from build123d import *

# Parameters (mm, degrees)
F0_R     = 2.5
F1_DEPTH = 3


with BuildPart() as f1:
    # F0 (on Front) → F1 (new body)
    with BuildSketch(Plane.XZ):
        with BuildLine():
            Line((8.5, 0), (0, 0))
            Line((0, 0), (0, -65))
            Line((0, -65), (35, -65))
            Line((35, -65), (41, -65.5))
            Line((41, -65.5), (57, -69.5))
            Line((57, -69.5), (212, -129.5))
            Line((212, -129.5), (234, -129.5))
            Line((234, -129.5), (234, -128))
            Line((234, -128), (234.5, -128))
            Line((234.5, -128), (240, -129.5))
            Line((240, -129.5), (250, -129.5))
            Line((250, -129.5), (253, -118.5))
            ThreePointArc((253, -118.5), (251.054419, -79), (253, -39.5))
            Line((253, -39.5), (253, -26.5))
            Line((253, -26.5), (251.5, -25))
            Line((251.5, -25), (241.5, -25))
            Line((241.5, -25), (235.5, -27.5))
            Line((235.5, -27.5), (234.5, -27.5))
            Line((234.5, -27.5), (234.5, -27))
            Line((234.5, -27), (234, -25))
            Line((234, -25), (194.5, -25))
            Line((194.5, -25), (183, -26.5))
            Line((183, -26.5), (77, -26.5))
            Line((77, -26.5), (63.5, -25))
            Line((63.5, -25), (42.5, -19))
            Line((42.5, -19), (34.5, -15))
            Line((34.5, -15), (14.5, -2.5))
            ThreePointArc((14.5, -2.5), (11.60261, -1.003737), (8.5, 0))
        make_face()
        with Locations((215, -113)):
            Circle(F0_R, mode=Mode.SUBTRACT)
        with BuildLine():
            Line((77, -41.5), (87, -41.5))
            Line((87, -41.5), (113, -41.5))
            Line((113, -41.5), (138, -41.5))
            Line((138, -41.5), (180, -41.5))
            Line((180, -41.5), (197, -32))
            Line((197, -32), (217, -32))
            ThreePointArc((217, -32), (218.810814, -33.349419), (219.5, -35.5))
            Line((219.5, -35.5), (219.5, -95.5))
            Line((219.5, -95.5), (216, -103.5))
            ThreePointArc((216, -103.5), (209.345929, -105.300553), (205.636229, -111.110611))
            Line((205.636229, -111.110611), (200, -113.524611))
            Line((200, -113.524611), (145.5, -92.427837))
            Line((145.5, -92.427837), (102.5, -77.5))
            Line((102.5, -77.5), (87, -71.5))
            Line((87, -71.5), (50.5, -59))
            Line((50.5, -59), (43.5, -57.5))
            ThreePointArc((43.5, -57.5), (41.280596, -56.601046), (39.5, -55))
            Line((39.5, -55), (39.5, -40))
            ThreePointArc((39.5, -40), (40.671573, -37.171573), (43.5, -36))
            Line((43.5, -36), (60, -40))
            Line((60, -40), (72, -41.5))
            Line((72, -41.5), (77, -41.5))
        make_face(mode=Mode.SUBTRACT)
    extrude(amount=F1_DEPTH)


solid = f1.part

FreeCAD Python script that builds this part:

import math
import FreeCAD as App
import Part
import Sketcher
from FreeCAD import Vector
Q = App.Units.Quantity

doc = App.newDocument("Part")
params = doc.addObject("Spreadsheet::Sheet", "Params")
for row, (alias, value) in enumerate([
    ("sketch1_diameter", "5 mm"),
    ("sketch1_radius", "4 mm"),
    ("sketch1_radius2", "3.7 mm"),
    ("sketch1_width", "35 mm"),
    ("sketch1_width2", "22 mm"),
    ("pad1_length", "3 mm"),
], start=1):
    params.set(f"A{row}", alias)
    params.set(f"B{row}", "=" + value)
    params.setAlias(f"B{row}", alias)

body = doc.addObject("PartDesign::Body", "Body")

sketch1 = body.newObject("Sketcher::SketchObject", "Sketch")
sketch1.AttachmentSupport = (doc.getObject("XZ_Plane"), [""])
sketch1.MapMode = "FlatFace"
sketch1.addGeometry(Part.LineSegment(Vector(8.5, 0, 0), Vector(0, 0, 0)), False)
sketch1.addGeometry(Part.LineSegment(Vector(0, 0, 0), Vector(0, -65, 0)), False)
sketch1.addGeometry(Part.LineSegment(Vector(0, -65, 0), Vector(35, -65, 0)), False)
sketch1.addGeometry(Part.LineSegment(Vector(35, -65, 0), Vector(41, -65.5, 0)), False)
sketch1.addGeometry(Part.LineSegment(Vector(41, -65.5, 0), Vector(57, -69.5, 0)), False)
sketch1.addGeometry(Part.LineSegment(Vector(57, -69.5, 0), Vector(212, -129.5, 0)), False)
sketch1.addGeometry(Part.LineSegment(Vector(212, -129.5, 0), Vector(234, -129.5, 0)), False)
sketch1.addGeometry(Part.LineSegment(Vector(234, -129.5, 0), Vector(234, -128, 0)), False)
sketch1.addGeometry(Part.LineSegment(Vector(234, -128, 0), Vector(234.5, -128, 0)), False)
sketch1.addGeometry(Part.LineSegment(Vector(234.5, -128, 0), Vector(240, -129.5, 0)), False)
sketch1.addGeometry(Part.LineSegment(Vector(240, -129.5, 0), Vector(250, -129.5, 0)), False)
sketch1.addGeometry(Part.LineSegment(Vector(250, -129.5, 0), Vector(253, -118.5, 0)), False)
sketch1.addGeometry(Part.ArcOfCircle(Part.Circle(Vector(653, -79, 0), Vector(0, 0, 1), 401.9), math.radians(174.36), math.radians(185.64)), False)
sketch1.addGeometry(Part.LineSegment(Vector(253, -39.5, 0), Vector(253, -26.5, 0)), False)
sketch1.addGeometry(Part.LineSegment(Vector(253, -26.5, 0), Vector(251.5, -25, 0)), False)
sketch1.addGeometry(Part.LineSegment(Vector(251.5, -25, 0), Vector(241.5, -25, 0)), False)
sketch1.addGeometry(Part.LineSegment(Vector(241.5, -25, 0), Vector(235.5, -27.5, 0)), False)
sketch1.addGeometry(Part.LineSegment(Vector(235.5, -27.5, 0), Vector(234.5, -27.5, 0)), False)
sketch1.addGeometry(Part.LineSegment(Vector(234.5, -27.5, 0), Vector(234.5, -27, 0)), False)
sketch1.addGeometry(Part.LineSegment(Vector(234.5, -27, 0), Vector(234, -25, 0)), False)
sketch1.addGeometry(Part.LineSegment(Vector(234, -25, 0), Vector(194.5, -25, 0)), False)
sketch1.addGeometry(Part.LineSegment(Vector(194.5, -25, 0), Vector(183, -26.5, 0)), False)
sketch1.addGeometry(Part.LineSegment(Vector(183, -26.5, 0), Vector(77, -26.5, 0)), False)
sketch1.addGeometry(Part.LineSegment(Vector(77, -26.5, 0), Vector(63.5, -25, 0)), False)
sketch1.addGeometry(Part.LineSegment(Vector(63.5, -25, 0), Vector(42.5, -19, 0)), False)
sketch1.addGeometry(Part.LineSegment(Vector(42.5, -19, 0), Vector(34.5, -15, 0)), False)
sketch1.addGeometry(Part.LineSegment(Vector(34.5, -15, 0), Vector(14.5, -2.5, 0)), False)
sketch1.addGeometry(Part.ArcOfCircle(Part.Circle(Vector(3.9, -19.4, 0), Vector(0, 0, 1), 19.9), math.radians(57.99), math.radians(76.77)), False)
sketch1.addGeometry(Part.Circle(Vector(215, -113, 0), Vector(0, 0, 1), 2.5), False)
sketch1.addGeometry(Part.LineSegment(Vector(72, -41.5, 0), Vector(180, -41.5, 0)), False)
sketch1.addGeometry(Part.LineSegment(Vector(180, -41.5, 0), Vector(197, -32, 0)), False)
sketch1.addGeometry(Part.LineSegment(Vector(197, -32, 0), Vector(217, -32, 0)), False)
sketch1.addGeometry(Part.ArcOfCircle(Part.Circle(Vector(215.8, -35.5, 0), Vector(0, 0, 1), 3.7), math.radians(0), math.radians(71)), False)
sketch1.addGeometry(Part.LineSegment(Vector(219.5, -35.5, 0), Vector(219.5, -95.5, 0)), False)
sketch1.addGeometry(Part.LineSegment(Vector(219.5, -95.5, 0), Vector(216, -103.5, 0)), False)
sketch1.addGeometry(Part.ArcOfCircle(Part.Circle(Vector(215, -113, 0), Vector(0, 0, 1), 9.6), math.radians(84), math.radians(169)), False)
sketch1.addGeometry(Part.LineSegment(Vector(205.6, -111.1, 0), Vector(200, -113.5, 0)), False)
sketch1.addGeometry(Part.LineSegment(Vector(200, -113.5, 0), Vector(145.5, -92.4, 0)), False)
sketch1.addGeometry(Part.LineSegment(Vector(145.5, -92.4, 0), Vector(102.5, -77.5, 0)), False)
sketch1.addGeometry(Part.LineSegment(Vector(102.5, -77.5, 0), Vector(87, -71.5, 0)), False)
sketch1.addGeometry(Part.LineSegment(Vector(87, -71.5, 0), Vector(50.5, -59, 0)), False)
sketch1.addGeometry(Part.LineSegment(Vector(50.5, -59, 0), Vector(43.5, -57.5, 0)), False)
sketch1.addGeometry(Part.ArcOfCircle(Part.Circle(Vector(45, -50.7, 0), Vector(0, 0, 1), 6.9), math.radians(-142), math.radians(-102)), False)
sketch1.addGeometry(Part.LineSegment(Vector(39.5, -55, 0), Vector(39.5, -40, 0)), False)
sketch1.addGeometry(Part.ArcOfCircle(Part.Circle(Vector(43.5, -40, 0), Vector(0, 0, 1), 4), math.radians(90), math.radians(180)), False)
sketch1.addGeometry(Part.LineSegment(Vector(43.5, -36, 0), Vector(60, -40, 0)), False)
sketch1.addGeometry(Part.LineSegment(Vector(60, -40, 0), Vector(72, -41.5, 0)), False)
sketch1.addConstraint(Sketcher.Constraint("Coincident", 0, 2, 1, 1))
sketch1.addConstraint(Sketcher.Constraint("Coincident", 1, 2, 2, 1))
sketch1.addConstraint(Sketcher.Constraint("Coincident", 2, 2, 3, 1))
sketch1.addConstraint(Sketcher.Constraint("Coincident", 3, 2, 4, 1))
sketch1.addConstraint(Sketcher.Constraint("Coincident", 4, 2, 5, 1))
sketch1.addConstraint(Sketcher.Constraint("Coincident", 5, 2, 6, 1))
sketch1.addConstraint(Sketcher.Constraint("Coincident", 6, 2, 7, 1))
sketch1.addConstraint(Sketcher.Constraint("Coincident", 7, 2, 8, 1))
sketch1.addConstraint(Sketcher.Constraint("Coincident", 8, 2, 9, 1))
sketch1.addConstraint(Sketcher.Constraint("Coincident", 9, 2, 10, 1))
sketch1.addConstraint(Sketcher.Constraint("Coincident", 10, 2, 11, 1))
sketch1.addConstraint(Sketcher.Constraint("Coincident", 11, 2, 12, 2))
sketch1.addConstraint(Sketcher.Constraint("Coincident", 12, 1, 13, 1))
sketch1.addConstraint(Sketcher.Constraint("Coincident", 13, 2, 14, 1))
sketch1.addConstraint(Sketcher.Constraint("Coincident", 14, 2, 15, 1))
sketch1.addConstraint(Sketcher.Constraint("Coincident", 15, 2, 16, 1))
sketch1.addConstraint(Sketcher.Constraint("Coincident", 16, 2, 17, 1))
sketch1.addConstraint(Sketcher.Constraint("Coincident", 17, 2, 18, 1))
sketch1.addConstraint(Sketcher.Constraint("Coincident", 18, 2, 19, 1))
sketch1.addConstraint(Sketcher.Constraint("Coincident", 19, 2, 20, 1))
sketch1.addConstraint(Sketcher.Constraint("Coincident", 20, 2, 21, 1))
sketch1.addConstraint(Sketcher.Constraint("Coincident", 21, 2, 22, 1))
sketch1.addConstraint(Sketcher.Constraint("Coincident", 22, 2, 23, 1))
sketch1.addConstraint(Sketcher.Constraint("Coincident", 23, 2, 24, 1))
sketch1.addConstraint(Sketcher.Constraint("Coincident", 24, 2, 25, 1))
sketch1.addConstraint(Sketcher.Constraint("Coincident", 25, 2, 26, 1))
sketch1.addConstraint(Sketcher.Constraint("Tangent", 26, 2, 27, 1))
sketch1.addConstraint(Sketcher.Constraint("Coincident", 27, 2, 0, 1))
sketch1.addConstraint(Sketcher.Constraint("Coincident", 29, 2, 30, 1))
sketch1.addConstraint(Sketcher.Constraint("Coincident", 30, 2, 31, 1))
sketch1.addConstraint(Sketcher.Constraint("Coincident", 31, 2, 32, 2))
sketch1.addConstraint(Sketcher.Constraint("Tangent", 32, 1, 33, 1))
sketch1.addConstraint(Sketcher.Constraint("Coincident", 33, 2, 34, 1))
sketch1.addConstraint(Sketcher.Constraint("Coincident", 34, 2, 35, 1))
sketch1.addConstraint(Sketcher.Constraint("Coincident", 35, 2, 36, 1))
sketch1.addConstraint(Sketcher.Constraint("Coincident", 36, 2, 37, 1))
sketch1.addConstraint(Sketcher.Constraint("Coincident", 37, 2, 38, 1))
sketch1.addConstraint(Sketcher.Constraint("Coincident", 38, 2, 39, 1))
sketch1.addConstraint(Sketcher.Constraint("Coincident", 39, 2, 40, 1))
sketch1.addConstraint(Sketcher.Constraint("Coincident", 40, 2, 41, 1))
sketch1.addConstraint(Sketcher.Constraint("Tangent", 41, 2, 42, 2))
sketch1.addConstraint(Sketcher.Constraint("Coincident", 42, 1, 43, 1))
sketch1.addConstraint(Sketcher.Constraint("Tangent", 43, 2, 44, 2))
sketch1.addConstraint(Sketcher.Constraint("Coincident", 44, 1, 45, 1))
sketch1.addConstraint(Sketcher.Constraint("Coincident", 45, 2, 46, 1))
sketch1.addConstraint(Sketcher.Constraint("Coincident", 46, 2, 29, 1))
sketch1.addConstraint(Sketcher.Constraint("Horizontal", 0))
sketch1.addConstraint(Sketcher.Constraint("Vertical", 1))
sketch1.addConstraint(Sketcher.Constraint("Horizontal", 2))
sketch1.addConstraint(Sketcher.Constraint("Horizontal", 6))
sketch1.addConstraint(Sketcher.Constraint("Vertical", 7))
sketch1.addConstraint(Sketcher.Constraint("Horizontal", 8))
sketch1.addConstraint(Sketcher.Constraint("Horizontal", 10))
sketch1.addConstraint(Sketcher.Constraint("Vertical", 13))
sketch1.addConstraint(Sketcher.Constraint("Horizontal", 15))
sketch1.addConstraint(Sketcher.Constraint("Horizontal", 17))
sketch1.addConstraint(Sketcher.Constraint("Vertical", 18))
sketch1.addConstraint(Sketcher.Constraint("Horizontal", 20))
sketch1.addConstraint(Sketcher.Constraint("Horizontal", 22))
sketch1.addConstraint(Sketcher.Constraint("Horizontal", 29))
sketch1.addConstraint(Sketcher.Constraint("Horizontal", 31))
sketch1.addConstraint(Sketcher.Constraint("Vertical", 33))
sketch1.addConstraint(Sketcher.Constraint("Vertical", 43))
sketch1.addConstraint(Sketcher.Constraint("Coincident", 0, 2, -1, 1))
sketch1.addConstraint(Sketcher.Constraint("Coincident", 35, 3, 28, 3))
sketch1.addConstraint(Sketcher.Constraint("Perpendicular", 9, 11))
sketch1.addConstraint(Sketcher.Constraint("Parallel", 5, 37))
sketch1.addConstraint(Sketcher.Constraint("Parallel", 37, 39))
sketch1.addConstraint(Sketcher.Constraint("Horizontal", 6, 2, 9, 2))
sketch1.addConstraint(Sketcher.Constraint("Horizontal", 15, 2, 19, 2))
sketch1.addConstraint(Sketcher.Constraint("Horizontal", 13, 2, 21, 2))
sketch1.addConstraint(Sketcher.Constraint("Horizontal", 20, 2, 23, 2))
sketch1.addConstraint(Sketcher.Constraint("Horizontal", 43, 2, 45, 2))
sketch1.addConstraint(Sketcher.Constraint("Vertical", 11, 2, 12, 1))
sketch1.addConstraint(Sketcher.Constraint("Vertical", 8, 2, 17, 2))
sketch1.addConstraint(Sketcher.Constraint("Vertical", 7, 2, 19, 2))
sketch1.addConstraint(Sketcher.Constraint("Vertical", 44, 3, 41, 2))
sketch1.addConstraint(Sketcher.Constraint("Vertical", 41, 2, 44, 1))
sketch1.addConstraint(Sketcher.Constraint("Equal", 10, 15))
sketch1.addConstraint(Sketcher.Constraint("Equal", 8, 18))
sketch1.addConstraint(Sketcher.Constraint("Diameter", 28, Q("5 mm")))
sketch1.addConstraint(Sketcher.Constraint("Radius", 44, Q("4 mm")))
sketch1.addConstraint(Sketcher.Constraint("Radius", 32, Q("3.7 mm")))
sketch1.addConstraint(Sketcher.Constraint("DistanceX", 2, 1, 2, 2, Q("35 mm")))
sketch1.addConstraint(Sketcher.Constraint("DistanceX", 6, 1, 6, 2, Q("22 mm")))
sketch1.addConstraint(Sketcher.Constraint("DistanceX", 10, 1, 10, 2, Q("10 mm")))
sketch1.addConstraint(Sketcher.Constraint("DistanceX", 17, 2, 17, 1, Q("1 mm")))
sketch1.addConstraint(Sketcher.Constraint("DistanceX", 22, 2, 22, 1, Q("106 mm")))
sketch1.addConstraint(Sketcher.Constraint("DistanceX", 29, 1, 29, 2, Q("108 mm")))
sketch1.addConstraint(Sketcher.Constraint("DistanceX", 31, 1, 31, 2, Q("20 mm")))
sketch1.addConstraint(Sketcher.Constraint("DistanceY", 1, 2, 1, 1, Q("65 mm")))
sketch1.addConstraint(Sketcher.Constraint("DistanceY", 13, 1, 13, 2, Q("13 mm")))
sketch1.addConstraint(Sketcher.Constraint("DistanceY", 33, 2, 33, 1, Q("60 mm")))
sketch1.addConstraint(Sketcher.Constraint("DistanceY", 43, 1, 43, 2, Q("15 mm")))
sketch1.addConstraint(Sketcher.Constraint("Angle", 14, Q("135 deg")))
sketch1.addConstraint(Sketcher.Constraint("DistanceX", 0, 2, 0, 1, Q("8.5 mm")))
sketch1.addConstraint(Sketcher.Constraint("DistanceX", 8, 1, 8, 2, Q("0.5 mm")))
sketch1.addConstraint(Sketcher.Constraint("DistanceX", 20, 2, 20, 1, Q("39.5 mm")))
sketch1.addConstraint(Sketcher.Constraint("DistanceY", 7, 1, 7, 2, Q("1.5 mm")))
sketch1.addConstraint(Sketcher.Constraint("DistanceY", 12, 3, -1, 1, Q("79 mm")))
sketch1.addConstraint(Sketcher.Constraint("DistanceX", -1, 1, 28, 3, Q("215 mm")))
sketch1.addConstraint(Sketcher.Constraint("DistanceY", 28, 3, -1, 1, Q("113 mm")))
sketch1.addConstraint(Sketcher.Constraint("DistanceY", 44, 3, -1, 1, Q("40 mm")))
sketch1.addConstraint(Sketcher.Constraint("DistanceX", -1, 1, 3, 2, Q("41 mm")))
sketch1.addConstraint(Sketcher.Constraint("DistanceX", -1, 1, 4, 2, Q("57 mm")))
sketch1.addConstraint(Sketcher.Constraint("DistanceX", -1, 1, 5, 2, Q("212 mm")))
sketch1.addConstraint(Sketcher.Constraint("DistanceY", 7, 2, -1, 1, Q("128 mm")))
sketch1.addConstraint(Sketcher.Constraint("DistanceX", -1, 1, 9, 2, Q("240 mm")))
sketch1.addConstraint(Sketcher.Constraint("DistanceX", -1, 1, 11, 2, Q("253 mm")))
sketch1.addConstraint(Sketcher.Constraint("DistanceY", 14, 2, -1, 1, Q("25 mm")))
sketch1.addConstraint(Sketcher.Constraint("DistanceY", 18, 2, -1, 1, Q("27 mm")))
sketch1.addConstraint(Sketcher.Constraint("DistanceX", -1, 1, 21, 2, Q("183 mm")))
sketch1.addConstraint(Sketcher.Constraint("DistanceY", 24, 2, -1, 1, Q("19 mm")))
sketch1.addConstraint(Sketcher.Constraint("DistanceY", 25, 2, -1, 1, Q("15 mm")))
sketch1.addConstraint(Sketcher.Constraint("DistanceX", -1, 1, 29, 2, Q("180 mm")))
sketch1.addConstraint(Sketcher.Constraint("DistanceX", -1, 1, 30, 2, Q("197 mm")))
sketch1.addConstraint(Sketcher.Constraint("DistanceY", 30, 2, -1, 1, Q("32 mm")))
sketch1.addConstraint(Sketcher.Constraint("DistanceX", -1, 1, 34, 2, Q("216 mm")))
sketch1.addConstraint(Sketcher.Constraint("DistanceX", -1, 1, 36, 2, Q("200 mm")))
sketch1.addConstraint(Sketcher.Constraint("DistanceX", -1, 1, 39, 2, Q("87 mm")))
sketch1.addConstraint(Sketcher.Constraint("DistanceY", 40, 2, -1, 1, Q("59 mm")))
sketch1.addConstraint(Sketcher.Constraint("DistanceX", -1, 1, 45, 2, Q("60 mm")))
sketch1.addConstraint(Sketcher.Constraint("DistanceY", 4, 2, 3, 2, Q("4 mm")))
sketch1.addConstraint(Sketcher.Constraint("DistanceY", 5, 2, 32, 3, Q("94 mm")))
sketch1.addConstraint(Sketcher.Constraint("DistanceY", 5, 2, 4, 2, Q("60 mm")))
sketch1.addConstraint(Sketcher.Constraint("DistanceX", 44, 3, 23, 2, Q("20 mm")))
sketch1.addConstraint(Sketcher.Constraint("DistanceX", 24, 2, 44, 3, Q("1 mm")))
sketch1.addConstraint(Sketcher.Constraint("DistanceX", 25, 2, 24, 2, Q("8 mm")))
sketch1.addConstraint(Sketcher.Constraint("DistanceX", 26, 2, 25, 2, Q("20 mm")))
sketch1.addConstraint(Sketcher.Constraint("DistanceX", 27, 2, 26, 2, Q("6 mm")))
sketch1.addConstraint(Sketcher.Constraint("DistanceY", 29, 2, 21, 2, Q("15 mm")))
sketch1.addConstraint(Sketcher.Constraint("DistanceY", 34, 2, 33, 2, Q("8 mm")))
sketch1.addConstraint(Sketcher.Constraint("DistanceX", 38, 2, 37, 2, Q("43 mm")))
sketch1.addConstraint(Sketcher.Constraint("DistanceY", 38, 2, 4, 2, Q("8 mm")))
sketch1.addConstraint(Sketcher.Constraint("DistanceY", 38, 2, 39, 2, Q("6 mm")))
sketch1.addConstraint(Sketcher.Constraint("DistanceX", 44, 3, 40, 2, Q("7 mm")))
sketch1.addConstraint(Sketcher.Constraint("DistanceY", 3, 2, 41, 2, Q("8 mm")))
sketch1.addConstraint(Sketcher.Constraint("DistanceY", 26, 2, -1, 1, Q("2.5 mm")))
sketch1.addConstraint(Sketcher.Constraint("Radius", 12, Q("401.945559 mm")))
sketch1.addConstraint(Sketcher.Constraint("DistanceY", 36, 2, 35, 2, Q("2.414 mm")))
sketch1.addConstraint(Sketcher.Constraint("DistanceX", -1, 1, 35, 2, Q("205.636229 mm")))
sketch1.setExpression("Constraints[80]", "Params.sketch1_diameter")
sketch1.setExpression("Constraints[81]", "Params.sketch1_radius")
sketch1.setExpression("Constraints[82]", "Params.sketch1_radius2")
sketch1.setExpression("Constraints[83]", "Params.sketch1_width")
sketch1.setExpression("Constraints[84]", "Params.sketch1_width2")
pad1 = body.newObject("PartDesign::Pad", "Pad")
pad1.Profile = sketch1
pad1.setExpression("Length", "Params.pad1_length")

doc.recompute()
